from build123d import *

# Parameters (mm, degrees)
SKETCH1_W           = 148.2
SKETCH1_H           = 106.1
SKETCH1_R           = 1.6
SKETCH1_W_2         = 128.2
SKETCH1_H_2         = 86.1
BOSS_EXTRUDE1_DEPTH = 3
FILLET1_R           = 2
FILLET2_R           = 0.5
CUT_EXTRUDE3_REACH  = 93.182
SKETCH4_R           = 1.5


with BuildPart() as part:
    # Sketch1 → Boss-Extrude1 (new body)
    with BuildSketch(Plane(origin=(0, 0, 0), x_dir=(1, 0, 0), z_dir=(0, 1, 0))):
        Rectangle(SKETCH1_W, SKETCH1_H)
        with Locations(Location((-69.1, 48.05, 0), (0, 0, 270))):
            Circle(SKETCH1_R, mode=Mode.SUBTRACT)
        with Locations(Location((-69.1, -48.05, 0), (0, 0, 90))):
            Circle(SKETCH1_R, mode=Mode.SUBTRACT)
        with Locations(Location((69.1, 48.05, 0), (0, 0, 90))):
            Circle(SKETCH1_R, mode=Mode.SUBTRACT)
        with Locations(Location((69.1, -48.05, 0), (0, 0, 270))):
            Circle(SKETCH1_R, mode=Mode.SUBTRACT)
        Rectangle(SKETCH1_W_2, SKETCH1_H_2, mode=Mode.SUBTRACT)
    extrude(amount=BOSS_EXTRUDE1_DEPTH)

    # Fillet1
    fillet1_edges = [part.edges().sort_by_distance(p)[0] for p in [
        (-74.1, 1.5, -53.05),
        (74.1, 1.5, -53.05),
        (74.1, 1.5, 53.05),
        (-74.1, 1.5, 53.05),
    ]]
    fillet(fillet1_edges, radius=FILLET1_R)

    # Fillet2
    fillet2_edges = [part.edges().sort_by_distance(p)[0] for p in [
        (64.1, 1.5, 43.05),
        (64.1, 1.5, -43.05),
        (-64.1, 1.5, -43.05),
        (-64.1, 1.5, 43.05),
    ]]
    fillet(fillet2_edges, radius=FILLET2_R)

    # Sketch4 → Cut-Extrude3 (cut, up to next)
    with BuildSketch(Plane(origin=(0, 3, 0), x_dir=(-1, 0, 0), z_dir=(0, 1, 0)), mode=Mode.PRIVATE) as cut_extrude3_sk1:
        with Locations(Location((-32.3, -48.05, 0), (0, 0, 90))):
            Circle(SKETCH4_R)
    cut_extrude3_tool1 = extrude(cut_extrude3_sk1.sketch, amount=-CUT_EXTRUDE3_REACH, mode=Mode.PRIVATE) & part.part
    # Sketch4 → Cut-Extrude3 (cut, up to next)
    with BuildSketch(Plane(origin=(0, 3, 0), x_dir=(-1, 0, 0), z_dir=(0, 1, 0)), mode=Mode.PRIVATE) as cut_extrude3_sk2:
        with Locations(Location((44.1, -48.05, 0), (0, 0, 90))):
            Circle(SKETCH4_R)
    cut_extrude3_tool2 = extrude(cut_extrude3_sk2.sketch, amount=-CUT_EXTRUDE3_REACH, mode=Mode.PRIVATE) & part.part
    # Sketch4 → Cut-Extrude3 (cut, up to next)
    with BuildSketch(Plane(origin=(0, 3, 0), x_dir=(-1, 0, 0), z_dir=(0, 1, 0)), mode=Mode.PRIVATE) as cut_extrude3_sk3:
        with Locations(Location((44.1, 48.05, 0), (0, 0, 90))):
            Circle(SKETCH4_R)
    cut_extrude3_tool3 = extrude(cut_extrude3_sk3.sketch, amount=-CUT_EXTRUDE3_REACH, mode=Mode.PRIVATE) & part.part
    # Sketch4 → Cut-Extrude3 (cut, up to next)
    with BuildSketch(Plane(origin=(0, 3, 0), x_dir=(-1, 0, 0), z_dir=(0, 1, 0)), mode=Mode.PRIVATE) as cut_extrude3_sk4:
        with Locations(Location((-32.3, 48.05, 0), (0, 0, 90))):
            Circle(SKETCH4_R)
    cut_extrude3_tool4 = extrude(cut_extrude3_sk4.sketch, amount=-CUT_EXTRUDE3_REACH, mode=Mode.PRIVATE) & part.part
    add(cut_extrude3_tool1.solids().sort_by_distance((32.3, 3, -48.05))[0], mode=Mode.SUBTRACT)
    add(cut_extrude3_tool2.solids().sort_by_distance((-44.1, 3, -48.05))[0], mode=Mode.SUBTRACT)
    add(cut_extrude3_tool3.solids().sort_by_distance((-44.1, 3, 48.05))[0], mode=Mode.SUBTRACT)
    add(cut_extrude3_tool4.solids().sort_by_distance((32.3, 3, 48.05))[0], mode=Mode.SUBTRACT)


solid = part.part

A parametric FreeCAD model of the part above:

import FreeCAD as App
import Part
import Sketcher
Q = App.Units.Quantity


def edges_at(feature, points):
    """Names of the edges that pass closest to the given points."""
    edges = feature.Shape.Edges
    near = lambda p: min(range(len(edges)), key=lambda i: edges[i].distToShape(Part.Vertex(*p))[0])
    return sorted({f"Edge{near(p) + 1}" for p in points})


def add_polygon(sketch, points):
    """Adds a closed chain of lines whose ends are joined by coincident constraints."""
    first, n = sketch.GeometryCount, len(points)
    for a, b in zip(points, points[1:] + points[:1]):
        sketch.addGeometry(Part.LineSegment(App.Vector(*a, 0), App.Vector(*b, 0)), False)
    for i in range(n):
        sketch.addConstraint(Sketcher.Constraint("Coincident", first + i, 2, first + (i + 1) % n, 1))

doc = App.newDocument("Part")
body = doc.addObject("PartDesign::Body", "Body")

# Sketch on XZ plane
sketch1 = doc.addObject("Sketcher::SketchObject", "Sketch")
body.addObject(sketch1)
sketch1.AttachmentSupport = (doc.XZ_Plane, [""])
sketch1.MapMode = "FlatFace"
add_polygon(sketch1, [(-74.1, -53.05), (-74.1, 53.05), (74.1, 53.05), (74.1, -53.05)])  # lines 0-3
sketch1.addGeometry(Part.Circle(App.Vector(-69.1, 48.05, 0), App.Vector(0, 0, 1), 1.6), False)  # 4
sketch1.addGeometry(Part.Circle(App.Vector(69.1, 48.05, 0), App.Vector(0, 0, 1), 1.6), False)  # 5
sketch1.addGeometry(Part.Circle(App.Vector(-69.1, -48.05, 0), App.Vector(0, 0, 1), 1.6), False)  # 6
add_polygon(sketch1, [(64.1, 43.05), (-64.1, 43.05), (-64.1, -43.05), (64.1, -43.05)])  # lines 7-10
sketch1.addGeometry(Part.Circle(App.Vector(69.1, -48.05, 0), App.Vector(0, 0, 1), 1.6), False)  # 11
sketch1.addConstraint([
    Sketcher.Constraint("Vertical", 0),
    Sketcher.Constraint("Horizontal", 1),
    Sketcher.Constraint("Vertical", 2),
    Sketcher.Constraint("Horizontal", 3),
    Sketcher.Constraint("Horizontal", 7),
    Sketcher.Constraint("Vertical", 8),
    Sketcher.Constraint("Horizontal", 9),
    Sketcher.Constraint("Vertical", 10),
    Sketcher.Constraint("Equal", 4, 5),
    Sketcher.Constraint("Equal", 5, 6),
    Sketcher.Constraint("Equal", 6, 11),
    Sketcher.Constraint("Symmetric", 5, 3, 6, 3, -1, 1),
    Sketcher.Constraint("Symmetric", 4, 3, 11, 3, -1, 1),
    Sketcher.Constraint("Symmetric", 0, 2, 2, 2, -1, 1),
    Sketcher.Constraint("Symmetric", 7, 2, 9, 2, -1, 1),
    Sketcher.Constraint("Symmetric", 4, 3, 5, 3, -2),
    Sketcher.Constraint("Diameter", 4, Q("3.2 mm")),
    Sketcher.Constraint("DistanceX", 1, 1, 1, 2, Q("148.2 mm")),
    Sketcher.Constraint("DistanceX", 7, 2, 7, 1, Q("128.2 mm")),
    Sketcher.Constraint("DistanceY", 0, 1, 0, 2, Q("106.1 mm")),
    Sketcher.Constraint("DistanceY", 8, 2, 8, 1, Q("86.1 mm")),
    Sketcher.Constraint("DistanceX", 0, 2, 4, 3, Q("5 mm")),
    Sketcher.Constraint("DistanceY", 4, 3, 0, 2, Q("5 mm")),
])
pad1 = doc.addObject("PartDesign::Pad", "Pad")
body.addObject(pad1)
pad1.Profile = sketch1
pad1.Length = 3
pad1.Reversed = True
doc.recompute()

fillet = doc.addObject("PartDesign::Fillet", "Fillet")
body.addObject(fillet)
fillet.Base = (pad1, edges_at(pad1, [
    (-74.1, 1.5, -53.05),
    (74.1, 1.5, -53.05),
    (74.1, 1.5, 53.05),
    (-74.1, 1.5, 53.05),
]))
fillet.Radius = 2
doc.recompute()

fillet2 = doc.addObject("PartDesign::Fillet", "Fillet001")
body.addObject(fillet2)
fillet2.Base = (fillet, edges_at(fillet, [
    (64.1, 1.5, 43.05),
    (64.1, 1.5, -43.05),
    (-64.1, 1.5, -43.05),
    (-64.1, 1.5, 43.05),
]))
fillet2.Radius = 0.5

# Sketch on XZ plane
sketch2 = doc.addObject("Sketcher::SketchObject", "Sketch001")
body.addObject(sketch2)
sketch2.AttachmentSupport = (doc.XZ_Plane, [""])
sketch2.MapMode = "FlatFace"
sketch2.AttachmentOffset = App.Placement(App.Vector(0, 0, -3), App.Rotation())
sketch2.addGeometry(Part.Circle(App.Vector(32.3, -48.05, 0), App.Vector(0, 0, 1), 1.5), False)
sketch2.addConstraint([
    Sketcher.Constraint("Diameter", 0, Q("3 mm")),
    Sketcher.Constraint("DistanceX", -1, 1, 0, 3, Q("32.3 mm")),
    Sketcher.Constraint("DistanceY", 0, 3, -1, 1, Q("48.05 mm")),
])
pocket1 = doc.addObject("PartDesign::Pocket", "Pocket")
body.addObject(pocket1)
pocket1.Profile = sketch2
pocket1.Type = "UpToFirst"
pocket1.Reversed = True

# Sketch on XZ plane
sketch3 = doc.addObject("Sketcher::SketchObject", "Sketch002")
body.addObject(sketch3)
sketch3.AttachmentSupport = (doc.XZ_Plane, [""])
sketch3.MapMode = "FlatFace"
sketch3.AttachmentOffset = App.Placement(App.Vector(0, 0, -3), App.Rotation())
sketch3.addGeometry(Part.Circle(App.Vector(-44.1, -48.05, 0), App.Vector(0, 0, 1), 1.5), False)
sketch3.addConstraint([
    Sketcher.Constraint("Diameter", 0, Q("3 mm")),
    Sketcher.Constraint("DistanceX", 0, 3, -1, 1, Q("44.1 mm")),
    Sketcher.Constraint("DistanceY", 0, 3, -1, 1, Q("48.05 mm")),
])
pocket2 = doc.addObject("PartDesign::Pocket", "Pocket001")
body.addObject(pocket2)
pocket2.Profile = sketch3
pocket2.Type = "UpToFirst"
pocket2.Reversed = True

# Sketch on XZ plane
sketch4 = doc.addObject("Sketcher::SketchObject", "Sketch003")
body.addObject(sketch4)
sketch4.AttachmentSupport = (doc.XZ_Plane, [""])
sketch4.MapMode = "FlatFace"
sketch4.AttachmentOffset = App.Placement(App.Vector(0, 0, -3), App.Rotation())
sketch4.addGeometry(Part.Circle(App.Vector(-44.1, 48.05, 0), App.Vector(0, 0, 1), 1.5), False)
sketch4.addConstraint([
    Sketcher.Constraint("Diameter", 0, Q("3 mm")),
    Sketcher.Constraint("DistanceX", 0, 3, -1, 1, Q("44.1 mm")),
    Sketcher.Constraint("DistanceY", -1, 1, 0, 3, Q("48.05 mm")),
])
pocket3 = doc.addObject("PartDesign::Pocket", "Pocket002")
body.addObject(pocket3)
pocket3.Profile = sketch4
pocket3.Type = "UpToFirst"
pocket3.Reversed = True

# Sketch on XZ plane
sketch5 = doc.addObject("Sketcher::SketchObject", "Sketch004")
body.addObject(sketch5)
sketch5.AttachmentSupport = (doc.XZ_Plane, [""])
sketch5.MapMode = "FlatFace"
sketch5.AttachmentOffset = App.Placement(App.Vector(0, 0, -3), App.Rotation())
sketch5.addGeometry(Part.Circle(App.Vector(32.3, 48.05, 0), App.Vector(0, 0, 1), 1.5), False)
sketch5.addConstraint([
    Sketcher.Constraint("Diameter", 0, Q("3 mm")),
    Sketcher.Constraint("DistanceX", -1, 1, 0, 3, Q("32.3 mm")),
    Sketcher.Constraint("DistanceY", -1, 1, 0, 3, Q("48.05 mm")),
])
pocket4 = doc.addObject("PartDesign::Pocket", "Pocket003")
body.addObject(pocket4)
pocket4.Profile = sketch5
pocket4.Type = "UpToFirst"
pocket4.Reversed = True

doc.recompute()
